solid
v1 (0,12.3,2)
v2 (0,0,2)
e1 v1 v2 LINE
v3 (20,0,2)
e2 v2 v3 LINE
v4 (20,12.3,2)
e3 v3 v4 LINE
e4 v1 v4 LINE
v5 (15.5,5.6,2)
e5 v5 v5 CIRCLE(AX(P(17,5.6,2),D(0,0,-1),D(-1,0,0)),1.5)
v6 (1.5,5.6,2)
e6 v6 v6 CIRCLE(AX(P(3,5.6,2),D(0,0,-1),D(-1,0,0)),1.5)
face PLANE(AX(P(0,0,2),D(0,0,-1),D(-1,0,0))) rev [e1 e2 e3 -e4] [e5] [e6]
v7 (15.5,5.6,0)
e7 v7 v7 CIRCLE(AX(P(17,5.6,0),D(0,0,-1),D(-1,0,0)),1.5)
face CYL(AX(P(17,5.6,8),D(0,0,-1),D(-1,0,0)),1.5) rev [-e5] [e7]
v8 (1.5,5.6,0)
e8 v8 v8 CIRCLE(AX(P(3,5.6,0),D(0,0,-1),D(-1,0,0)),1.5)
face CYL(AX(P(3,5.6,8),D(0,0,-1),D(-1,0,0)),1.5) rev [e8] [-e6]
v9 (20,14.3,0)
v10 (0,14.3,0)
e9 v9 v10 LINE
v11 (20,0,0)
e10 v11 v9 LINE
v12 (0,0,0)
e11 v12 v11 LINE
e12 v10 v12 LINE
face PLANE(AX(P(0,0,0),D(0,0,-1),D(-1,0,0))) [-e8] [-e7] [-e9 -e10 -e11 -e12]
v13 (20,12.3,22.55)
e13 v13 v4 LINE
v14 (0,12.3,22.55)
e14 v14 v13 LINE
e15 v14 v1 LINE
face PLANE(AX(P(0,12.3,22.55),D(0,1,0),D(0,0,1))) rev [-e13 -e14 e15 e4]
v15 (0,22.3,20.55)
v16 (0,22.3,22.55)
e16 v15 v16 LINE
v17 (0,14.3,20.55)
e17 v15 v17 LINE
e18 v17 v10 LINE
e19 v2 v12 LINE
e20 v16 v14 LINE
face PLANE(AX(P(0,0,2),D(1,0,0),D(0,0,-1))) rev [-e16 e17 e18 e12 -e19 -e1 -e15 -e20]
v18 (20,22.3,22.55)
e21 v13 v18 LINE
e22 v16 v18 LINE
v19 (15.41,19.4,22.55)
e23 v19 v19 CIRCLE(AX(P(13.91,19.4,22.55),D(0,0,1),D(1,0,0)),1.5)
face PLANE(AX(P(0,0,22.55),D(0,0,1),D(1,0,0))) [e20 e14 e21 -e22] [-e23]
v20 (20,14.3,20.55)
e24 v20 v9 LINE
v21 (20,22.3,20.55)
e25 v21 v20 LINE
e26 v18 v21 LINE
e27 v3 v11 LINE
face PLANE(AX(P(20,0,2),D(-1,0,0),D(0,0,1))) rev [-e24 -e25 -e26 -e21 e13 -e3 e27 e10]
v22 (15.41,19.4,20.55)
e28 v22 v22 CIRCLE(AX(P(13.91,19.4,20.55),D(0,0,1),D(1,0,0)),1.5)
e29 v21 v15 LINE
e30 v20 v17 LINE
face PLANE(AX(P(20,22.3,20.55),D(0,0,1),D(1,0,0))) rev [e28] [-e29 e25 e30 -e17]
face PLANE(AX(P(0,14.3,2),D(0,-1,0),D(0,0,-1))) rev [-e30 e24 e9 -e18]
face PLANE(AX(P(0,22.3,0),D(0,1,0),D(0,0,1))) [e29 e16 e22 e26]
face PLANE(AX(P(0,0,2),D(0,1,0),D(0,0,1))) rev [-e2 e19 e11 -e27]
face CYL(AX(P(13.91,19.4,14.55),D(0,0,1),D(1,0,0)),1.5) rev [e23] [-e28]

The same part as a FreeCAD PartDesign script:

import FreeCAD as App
import Part
import Sketcher


def add_polygon(sketch, points):
    """Adds a closed chain of lines whose ends are joined by coincident constraints."""
    first, n = sketch.GeometryCount, len(points)
    for a, b in zip(points, points[1:] + points[:1]):
        sketch.addGeometry(Part.LineSegment(App.Vector(*a, 0), App.Vector(*b, 0)), False)
    for i in range(n):
        sketch.addConstraint(Sketcher.Constraint("Coincident", first + i, 2, first + (i + 1) % n, 1))

doc = App.newDocument("Part")
body = doc.addObject("PartDesign::Body", "Body")

# Sketch on XY plane
sketch1 = body.newObject("Sketcher::SketchObject", "Sketch")
sketch1.AttachmentSupport = (doc.getObject("XY_Plane"), [""])
sketch1.MapMode = "FlatFace"
add_polygon(sketch1, [(0, 14), (0, 0), (20, 0), (20, 14)])  # lines 0-3
sketch1.addConstraint([
    Sketcher.Constraint("Vertical", 0),
    Sketcher.Constraint("Horizontal", 1),
    Sketcher.Constraint("Vertical", 2),
    Sketcher.Constraint("Horizontal", 3),
    Sketcher.Constraint("Coincident", 0, 2, -1, 1),
    Sketcher.Constraint("DistanceX", 1, 1, 1, 2, 20.0),
    Sketcher.Constraint("DistanceY", 0, 2, 0, 1, 14.3),
])
pad1 = body.newObject("PartDesign::Pad", "Pad")
pad1.Profile = sketch1
pad1.Length = 2

# Sketch on XY plane
sketch2 = body.newObject("Sketcher::SketchObject", "Sketch001")
sketch2.AttachmentSupport = (doc.getObject("XY_Plane"), [""])
sketch2.MapMode = "FlatFace"
sketch2.AttachmentOffset = App.Placement(App.Vector(0, 0, 2), App.Rotation())
add_polygon(sketch2, [(0, 14.3), (0, 12.3), (20, 12.3), (20, 14.3)])  # lines 0-3
sketch2.addConstraint([
    Sketcher.Constraint("Vertical", 0),
    Sketcher.Constraint("Horizontal", 1),
    Sketcher.Constraint("Vertical", 2),
    Sketcher.Constraint("Horizontal", 3),
    Sketcher.Constraint("PointOnObject", 0, 2, -2),
    Sketcher.Constraint("DistanceX", 1, 1, 1, 2, 20.0),
    Sketcher.Constraint("DistanceY", 0, 2, 0, 1, 2.0),
    Sketcher.Constraint("DistanceY", -1, 1, 0, 2, 12.3),
])
pad2 = body.newObject("PartDesign::Pad", "Pad001")
pad2.Profile = sketch2
pad2.Length = 20.55

# Sketch on XZ plane
sketch3 = body.newObject("Sketcher::SketchObject", "Sketch002")
sketch3.AttachmentSupport = (doc.getObject("XZ_Plane"), [""])
sketch3.MapMode = "FlatFace"
sketch3.AttachmentOffset = App.Placement(App.Vector(0, 0, -14.3), App.Rotation())
add_polygon(sketch3, [(0, 20.6), (0, 22.6), (20, 22.6), (20, 20.6)])  # lines 0-3
sketch3.addConstraint([
    Sketcher.Constraint("Vertical", 0),
    Sketcher.Constraint("Horizontal", 1),
    Sketcher.Constraint("Vertical", 2),
    Sketcher.Constraint("Horizontal", 3),
    Sketcher.Constraint("PointOnObject", 0, 2, -2),
    Sketcher.Constraint("DistanceX", 1, 1, 1, 2, 20.0),
    Sketcher.Constraint("DistanceY", 0, 1, 0, 2, 2.0),
    Sketcher.Constraint("DistanceY", -1, 1, 0, 2, 22.55),
])
pad3 = body.newObject("PartDesign::Pad", "Pad002")
pad3.Profile = sketch3
pad3.Length = 8
pad3.Reversed = True

# Sketch on XY plane
sketch4 = body.newObject("Sketcher::SketchObject", "Sketch003")
sketch4.AttachmentSupport = (doc.getObject("XY_Plane"), [""])
sketch4.MapMode = "FlatFace"
sketch4.addGeometry([
    Part.Circle(App.Vector(17, 5.6, 0), App.Vector(0, 0, 1), 1.5),
    Part.Circle(App.Vector(3, 5.6, 0), App.Vector(0, 0, 1), 1.5),
], False)
sketch4.addConstraint([
    Sketcher.Constraint("Equal", 0, 1),
    Sketcher.Constraint("Horizontal", 0, 3, 1, 3),
    Sketcher.Constraint("Diameter", 0, 3.0),
    Sketcher.Constraint("DistanceX", -1, 1, 0, 3, 17.0),
    Sketcher.Constraint("DistanceX", -1, 1, 1, 3, 3.0),
    Sketcher.Constraint("DistanceY", -1, 1, 0, 3, 5.6),
])
pocket1 = body.newObject("PartDesign::Pocket", "Pocket")
pocket1.Profile = sketch4
pocket1.Length = 8
pocket1.Reversed = True

# Sketch on XY plane
sketch5 = body.newObject("Sketcher::SketchObject", "Sketch004")
sketch5.AttachmentSupport = (doc.getObject("XY_Plane"), [""])
sketch5.MapMode = "FlatFace"
sketch5.AttachmentOffset = App.Placement(App.Vector(0, 0, 22.55), App.Rotation())
sketch5.addGeometry(Part.Circle(App.Vector(13.9, 19.4, 0), App.Vector(0, 0, 1), 1.5), False)
sketch5.addConstraint([
    Sketcher.Constraint("Diameter", 0, 3.0),
    Sketcher.Constraint("DistanceY", -1, 1, 0, 3, 19.4),
    Sketcher.Constraint("DistanceX", -1, 1, 0, 3, 13.91),
])
pocket2 = body.newObject("PartDesign::Pocket", "Pocket001")
pocket2.Profile = sketch5
pocket2.Length = 8

doc.recompute()
